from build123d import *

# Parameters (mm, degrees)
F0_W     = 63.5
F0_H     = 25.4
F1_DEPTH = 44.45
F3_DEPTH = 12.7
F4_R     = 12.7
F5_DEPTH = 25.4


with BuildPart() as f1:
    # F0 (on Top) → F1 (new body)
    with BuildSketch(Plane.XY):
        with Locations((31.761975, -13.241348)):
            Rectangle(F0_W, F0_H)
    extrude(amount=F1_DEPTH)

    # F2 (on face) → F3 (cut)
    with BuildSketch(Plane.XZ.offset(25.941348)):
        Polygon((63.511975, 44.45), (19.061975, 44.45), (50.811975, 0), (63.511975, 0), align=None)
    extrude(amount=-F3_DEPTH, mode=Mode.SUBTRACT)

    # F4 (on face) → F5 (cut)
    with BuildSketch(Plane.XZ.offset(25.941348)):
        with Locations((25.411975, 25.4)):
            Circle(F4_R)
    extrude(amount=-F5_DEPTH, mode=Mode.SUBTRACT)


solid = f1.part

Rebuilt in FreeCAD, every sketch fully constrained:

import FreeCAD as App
import Part
import Sketcher
from FreeCAD import Vector
Q = App.Units.Quantity

doc = App.newDocument("Part")
params = doc.addObject("Spreadsheet::Sheet", "Params")
for row, (alias, value) in enumerate([
    ("sketch1_height", "1 in"),
    ("sketch1_width", "2.5 in"),
    ("pad1_length", "1.75 in"),
    ("sketch2_width", "0.5 in"),
    ("sketch2_width2", "1.75 in"),
    ("pocket1_length", "0.5 in"),
    ("sketch3_diameter", "1 in"),
    ("pocket2_length", "1 in"),
], start=1):
    params.set(f"A{row}", alias)
    params.set(f"B{row}", "=" + value)
    params.setAlias(f"B{row}", alias)

body = doc.addObject("PartDesign::Body", "Body")

sketch1 = body.newObject("Sketcher::SketchObject", "Sketch")
sketch1.AttachmentSupport = (doc.getObject("XY_Plane"), [""])
sketch1.MapMode = "FlatFace"
sketch1.addGeometry(Part.LineSegment(Vector(0, -1, 0), Vector(0, -26, 0)), False)
sketch1.addGeometry(Part.LineSegment(Vector(0, -26, 0), Vector(64, -26, 0)), False)
sketch1.addGeometry(Part.LineSegment(Vector(64, -26, 0), Vector(64, -1, 0)), False)
sketch1.addGeometry(Part.LineSegment(Vector(64, -1, 0), Vector(0, -1, 0)), False)
sketch1.addConstraint(Sketcher.Constraint("Coincident", 0, 2, 1, 1))
sketch1.addConstraint(Sketcher.Constraint("Coincident", 1, 2, 2, 1))
sketch1.addConstraint(Sketcher.Constraint("Coincident", 2, 2, 3, 1))
sketch1.addConstraint(Sketcher.Constraint("Coincident", 3, 2, 0, 1))
sketch1.addConstraint(Sketcher.Constraint("Vertical", 0))
sketch1.addConstraint(Sketcher.Constraint("Horizontal", 1))
sketch1.addConstraint(Sketcher.Constraint("Vertical", 2))
sketch1.addConstraint(Sketcher.Constraint("Horizontal", 3))
sketch1.addConstraint(Sketcher.Constraint("DistanceY", 0, 2, 0, 1, Q("1 in")))
sketch1.addConstraint(Sketcher.Constraint("DistanceX", 1, 1, 1, 2, Q("2.5 in")))
sketch1.addConstraint(Sketcher.Constraint("DistanceY", 0, 2, -1, 1, 25.941348))
sketch1.addConstraint(Sketcher.Constraint("DistanceX", -1, 1, 0, 2, 0.011975))
sketch1.setExpression("Constraints[8]", "Params.sketch1_height")
sketch1.setExpression("Constraints[9]", "Params.sketch1_width")
pad1 = body.newObject("PartDesign::Pad", "Pad")
pad1.Profile = sketch1
pad1.setExpression("Length", "Params.pad1_length")

sketch2 = body.newObject("Sketcher::SketchObject", "Sketch001")
sketch2.AttachmentSupport = (doc.getObject("XZ_Plane"), [""])
sketch2.MapMode = "FlatFace"
sketch2.AttachmentOffset = App.Placement(Vector(0, 0, 25.941348), App.Rotation())
sketch2.addGeometry(Part.LineSegment(Vector(64, 44, 0), Vector(19, 44, 0)), False)
sketch2.addGeometry(Part.LineSegment(Vector(19, 44, 0), Vector(51, 0, 0)), False)
sketch2.addGeometry(Part.LineSegment(Vector(51, 0, 0), Vector(64, 0, 0)), False)
sketch2.addGeometry(Part.LineSegment(Vector(64, 0, 0), Vector(64, 44, 0)), False)
sketch2.addConstraint(Sketcher.Constraint("Coincident", 0, 2, 1, 1))
sketch2.addConstraint(Sketcher.Constraint("Coincident", 1, 2, 2, 1))
sketch2.addConstraint(Sketcher.Constraint("Coincident", 2, 2, 3, 1))
sketch2.addConstraint(Sketcher.Constraint("Coincident", 3, 2, 0, 1))
sketch2.addConstraint(Sketcher.Constraint("Horizontal", 0))
sketch2.addConstraint(Sketcher.Constraint("Horizontal", 2))
sketch2.addConstraint(Sketcher.Constraint("Vertical", 3))
sketch2.addConstraint(Sketcher.Constraint("PointOnObject", 1, 2, -1))
sketch2.addConstraint(Sketcher.Constraint("Equal", 0, 3))
sketch2.addConstraint(Sketcher.Constraint("DistanceX", 2, 1, 2, 2, Q("0.5 in")))
sketch2.addConstraint(Sketcher.Constraint("DistanceX", 0, 2, 0, 1, Q("1.75 in")))
sketch2.addConstraint(Sketcher.Constraint("DistanceX", -1, 1, 0, 2, 19.061975))
sketch2.setExpression("Constraints[9]", "Params.sketch2_width")
sketch2.setExpression("Constraints[10]", "Params.sketch2_width2")
pocket1 = body.newObject("PartDesign::Pocket", "Pocket")
pocket1.Profile = sketch2
pocket1.setExpression("Length", "Params.pocket1_length")

sketch3 = body.newObject("Sketcher::SketchObject", "Sketch002")
sketch3.AttachmentSupport = (doc.getObject("XZ_Plane"), [""])
sketch3.MapMode = "FlatFace"
sketch3.AttachmentOffset = App.Placement(Vector(0, 0, 25.941348), App.Rotation())
sketch3.addGeometry(Part.Circle(Vector(25, 25, 0), Vector(0, 0, 1), 13), False)
sketch3.addConstraint(Sketcher.Constraint("Diameter", 0, Q("1 in")))
sketch3.addConstraint(Sketcher.Constraint("DistanceY", -1, 1, 0, 3, Q("1 in")))
sketch3.addConstraint(Sketcher.Constraint("DistanceX", -1, 1, 0, 3, 25.411975))
sketch3.setExpression("Constraints[0]", "Params.sketch3_diameter")
pocket2 = body.newObject("PartDesign::Pocket", "Pocket001")
pocket2.Profile = sketch3
pocket2.setExpression("Length", "Params.pocket2_length")

doc.recompute()
